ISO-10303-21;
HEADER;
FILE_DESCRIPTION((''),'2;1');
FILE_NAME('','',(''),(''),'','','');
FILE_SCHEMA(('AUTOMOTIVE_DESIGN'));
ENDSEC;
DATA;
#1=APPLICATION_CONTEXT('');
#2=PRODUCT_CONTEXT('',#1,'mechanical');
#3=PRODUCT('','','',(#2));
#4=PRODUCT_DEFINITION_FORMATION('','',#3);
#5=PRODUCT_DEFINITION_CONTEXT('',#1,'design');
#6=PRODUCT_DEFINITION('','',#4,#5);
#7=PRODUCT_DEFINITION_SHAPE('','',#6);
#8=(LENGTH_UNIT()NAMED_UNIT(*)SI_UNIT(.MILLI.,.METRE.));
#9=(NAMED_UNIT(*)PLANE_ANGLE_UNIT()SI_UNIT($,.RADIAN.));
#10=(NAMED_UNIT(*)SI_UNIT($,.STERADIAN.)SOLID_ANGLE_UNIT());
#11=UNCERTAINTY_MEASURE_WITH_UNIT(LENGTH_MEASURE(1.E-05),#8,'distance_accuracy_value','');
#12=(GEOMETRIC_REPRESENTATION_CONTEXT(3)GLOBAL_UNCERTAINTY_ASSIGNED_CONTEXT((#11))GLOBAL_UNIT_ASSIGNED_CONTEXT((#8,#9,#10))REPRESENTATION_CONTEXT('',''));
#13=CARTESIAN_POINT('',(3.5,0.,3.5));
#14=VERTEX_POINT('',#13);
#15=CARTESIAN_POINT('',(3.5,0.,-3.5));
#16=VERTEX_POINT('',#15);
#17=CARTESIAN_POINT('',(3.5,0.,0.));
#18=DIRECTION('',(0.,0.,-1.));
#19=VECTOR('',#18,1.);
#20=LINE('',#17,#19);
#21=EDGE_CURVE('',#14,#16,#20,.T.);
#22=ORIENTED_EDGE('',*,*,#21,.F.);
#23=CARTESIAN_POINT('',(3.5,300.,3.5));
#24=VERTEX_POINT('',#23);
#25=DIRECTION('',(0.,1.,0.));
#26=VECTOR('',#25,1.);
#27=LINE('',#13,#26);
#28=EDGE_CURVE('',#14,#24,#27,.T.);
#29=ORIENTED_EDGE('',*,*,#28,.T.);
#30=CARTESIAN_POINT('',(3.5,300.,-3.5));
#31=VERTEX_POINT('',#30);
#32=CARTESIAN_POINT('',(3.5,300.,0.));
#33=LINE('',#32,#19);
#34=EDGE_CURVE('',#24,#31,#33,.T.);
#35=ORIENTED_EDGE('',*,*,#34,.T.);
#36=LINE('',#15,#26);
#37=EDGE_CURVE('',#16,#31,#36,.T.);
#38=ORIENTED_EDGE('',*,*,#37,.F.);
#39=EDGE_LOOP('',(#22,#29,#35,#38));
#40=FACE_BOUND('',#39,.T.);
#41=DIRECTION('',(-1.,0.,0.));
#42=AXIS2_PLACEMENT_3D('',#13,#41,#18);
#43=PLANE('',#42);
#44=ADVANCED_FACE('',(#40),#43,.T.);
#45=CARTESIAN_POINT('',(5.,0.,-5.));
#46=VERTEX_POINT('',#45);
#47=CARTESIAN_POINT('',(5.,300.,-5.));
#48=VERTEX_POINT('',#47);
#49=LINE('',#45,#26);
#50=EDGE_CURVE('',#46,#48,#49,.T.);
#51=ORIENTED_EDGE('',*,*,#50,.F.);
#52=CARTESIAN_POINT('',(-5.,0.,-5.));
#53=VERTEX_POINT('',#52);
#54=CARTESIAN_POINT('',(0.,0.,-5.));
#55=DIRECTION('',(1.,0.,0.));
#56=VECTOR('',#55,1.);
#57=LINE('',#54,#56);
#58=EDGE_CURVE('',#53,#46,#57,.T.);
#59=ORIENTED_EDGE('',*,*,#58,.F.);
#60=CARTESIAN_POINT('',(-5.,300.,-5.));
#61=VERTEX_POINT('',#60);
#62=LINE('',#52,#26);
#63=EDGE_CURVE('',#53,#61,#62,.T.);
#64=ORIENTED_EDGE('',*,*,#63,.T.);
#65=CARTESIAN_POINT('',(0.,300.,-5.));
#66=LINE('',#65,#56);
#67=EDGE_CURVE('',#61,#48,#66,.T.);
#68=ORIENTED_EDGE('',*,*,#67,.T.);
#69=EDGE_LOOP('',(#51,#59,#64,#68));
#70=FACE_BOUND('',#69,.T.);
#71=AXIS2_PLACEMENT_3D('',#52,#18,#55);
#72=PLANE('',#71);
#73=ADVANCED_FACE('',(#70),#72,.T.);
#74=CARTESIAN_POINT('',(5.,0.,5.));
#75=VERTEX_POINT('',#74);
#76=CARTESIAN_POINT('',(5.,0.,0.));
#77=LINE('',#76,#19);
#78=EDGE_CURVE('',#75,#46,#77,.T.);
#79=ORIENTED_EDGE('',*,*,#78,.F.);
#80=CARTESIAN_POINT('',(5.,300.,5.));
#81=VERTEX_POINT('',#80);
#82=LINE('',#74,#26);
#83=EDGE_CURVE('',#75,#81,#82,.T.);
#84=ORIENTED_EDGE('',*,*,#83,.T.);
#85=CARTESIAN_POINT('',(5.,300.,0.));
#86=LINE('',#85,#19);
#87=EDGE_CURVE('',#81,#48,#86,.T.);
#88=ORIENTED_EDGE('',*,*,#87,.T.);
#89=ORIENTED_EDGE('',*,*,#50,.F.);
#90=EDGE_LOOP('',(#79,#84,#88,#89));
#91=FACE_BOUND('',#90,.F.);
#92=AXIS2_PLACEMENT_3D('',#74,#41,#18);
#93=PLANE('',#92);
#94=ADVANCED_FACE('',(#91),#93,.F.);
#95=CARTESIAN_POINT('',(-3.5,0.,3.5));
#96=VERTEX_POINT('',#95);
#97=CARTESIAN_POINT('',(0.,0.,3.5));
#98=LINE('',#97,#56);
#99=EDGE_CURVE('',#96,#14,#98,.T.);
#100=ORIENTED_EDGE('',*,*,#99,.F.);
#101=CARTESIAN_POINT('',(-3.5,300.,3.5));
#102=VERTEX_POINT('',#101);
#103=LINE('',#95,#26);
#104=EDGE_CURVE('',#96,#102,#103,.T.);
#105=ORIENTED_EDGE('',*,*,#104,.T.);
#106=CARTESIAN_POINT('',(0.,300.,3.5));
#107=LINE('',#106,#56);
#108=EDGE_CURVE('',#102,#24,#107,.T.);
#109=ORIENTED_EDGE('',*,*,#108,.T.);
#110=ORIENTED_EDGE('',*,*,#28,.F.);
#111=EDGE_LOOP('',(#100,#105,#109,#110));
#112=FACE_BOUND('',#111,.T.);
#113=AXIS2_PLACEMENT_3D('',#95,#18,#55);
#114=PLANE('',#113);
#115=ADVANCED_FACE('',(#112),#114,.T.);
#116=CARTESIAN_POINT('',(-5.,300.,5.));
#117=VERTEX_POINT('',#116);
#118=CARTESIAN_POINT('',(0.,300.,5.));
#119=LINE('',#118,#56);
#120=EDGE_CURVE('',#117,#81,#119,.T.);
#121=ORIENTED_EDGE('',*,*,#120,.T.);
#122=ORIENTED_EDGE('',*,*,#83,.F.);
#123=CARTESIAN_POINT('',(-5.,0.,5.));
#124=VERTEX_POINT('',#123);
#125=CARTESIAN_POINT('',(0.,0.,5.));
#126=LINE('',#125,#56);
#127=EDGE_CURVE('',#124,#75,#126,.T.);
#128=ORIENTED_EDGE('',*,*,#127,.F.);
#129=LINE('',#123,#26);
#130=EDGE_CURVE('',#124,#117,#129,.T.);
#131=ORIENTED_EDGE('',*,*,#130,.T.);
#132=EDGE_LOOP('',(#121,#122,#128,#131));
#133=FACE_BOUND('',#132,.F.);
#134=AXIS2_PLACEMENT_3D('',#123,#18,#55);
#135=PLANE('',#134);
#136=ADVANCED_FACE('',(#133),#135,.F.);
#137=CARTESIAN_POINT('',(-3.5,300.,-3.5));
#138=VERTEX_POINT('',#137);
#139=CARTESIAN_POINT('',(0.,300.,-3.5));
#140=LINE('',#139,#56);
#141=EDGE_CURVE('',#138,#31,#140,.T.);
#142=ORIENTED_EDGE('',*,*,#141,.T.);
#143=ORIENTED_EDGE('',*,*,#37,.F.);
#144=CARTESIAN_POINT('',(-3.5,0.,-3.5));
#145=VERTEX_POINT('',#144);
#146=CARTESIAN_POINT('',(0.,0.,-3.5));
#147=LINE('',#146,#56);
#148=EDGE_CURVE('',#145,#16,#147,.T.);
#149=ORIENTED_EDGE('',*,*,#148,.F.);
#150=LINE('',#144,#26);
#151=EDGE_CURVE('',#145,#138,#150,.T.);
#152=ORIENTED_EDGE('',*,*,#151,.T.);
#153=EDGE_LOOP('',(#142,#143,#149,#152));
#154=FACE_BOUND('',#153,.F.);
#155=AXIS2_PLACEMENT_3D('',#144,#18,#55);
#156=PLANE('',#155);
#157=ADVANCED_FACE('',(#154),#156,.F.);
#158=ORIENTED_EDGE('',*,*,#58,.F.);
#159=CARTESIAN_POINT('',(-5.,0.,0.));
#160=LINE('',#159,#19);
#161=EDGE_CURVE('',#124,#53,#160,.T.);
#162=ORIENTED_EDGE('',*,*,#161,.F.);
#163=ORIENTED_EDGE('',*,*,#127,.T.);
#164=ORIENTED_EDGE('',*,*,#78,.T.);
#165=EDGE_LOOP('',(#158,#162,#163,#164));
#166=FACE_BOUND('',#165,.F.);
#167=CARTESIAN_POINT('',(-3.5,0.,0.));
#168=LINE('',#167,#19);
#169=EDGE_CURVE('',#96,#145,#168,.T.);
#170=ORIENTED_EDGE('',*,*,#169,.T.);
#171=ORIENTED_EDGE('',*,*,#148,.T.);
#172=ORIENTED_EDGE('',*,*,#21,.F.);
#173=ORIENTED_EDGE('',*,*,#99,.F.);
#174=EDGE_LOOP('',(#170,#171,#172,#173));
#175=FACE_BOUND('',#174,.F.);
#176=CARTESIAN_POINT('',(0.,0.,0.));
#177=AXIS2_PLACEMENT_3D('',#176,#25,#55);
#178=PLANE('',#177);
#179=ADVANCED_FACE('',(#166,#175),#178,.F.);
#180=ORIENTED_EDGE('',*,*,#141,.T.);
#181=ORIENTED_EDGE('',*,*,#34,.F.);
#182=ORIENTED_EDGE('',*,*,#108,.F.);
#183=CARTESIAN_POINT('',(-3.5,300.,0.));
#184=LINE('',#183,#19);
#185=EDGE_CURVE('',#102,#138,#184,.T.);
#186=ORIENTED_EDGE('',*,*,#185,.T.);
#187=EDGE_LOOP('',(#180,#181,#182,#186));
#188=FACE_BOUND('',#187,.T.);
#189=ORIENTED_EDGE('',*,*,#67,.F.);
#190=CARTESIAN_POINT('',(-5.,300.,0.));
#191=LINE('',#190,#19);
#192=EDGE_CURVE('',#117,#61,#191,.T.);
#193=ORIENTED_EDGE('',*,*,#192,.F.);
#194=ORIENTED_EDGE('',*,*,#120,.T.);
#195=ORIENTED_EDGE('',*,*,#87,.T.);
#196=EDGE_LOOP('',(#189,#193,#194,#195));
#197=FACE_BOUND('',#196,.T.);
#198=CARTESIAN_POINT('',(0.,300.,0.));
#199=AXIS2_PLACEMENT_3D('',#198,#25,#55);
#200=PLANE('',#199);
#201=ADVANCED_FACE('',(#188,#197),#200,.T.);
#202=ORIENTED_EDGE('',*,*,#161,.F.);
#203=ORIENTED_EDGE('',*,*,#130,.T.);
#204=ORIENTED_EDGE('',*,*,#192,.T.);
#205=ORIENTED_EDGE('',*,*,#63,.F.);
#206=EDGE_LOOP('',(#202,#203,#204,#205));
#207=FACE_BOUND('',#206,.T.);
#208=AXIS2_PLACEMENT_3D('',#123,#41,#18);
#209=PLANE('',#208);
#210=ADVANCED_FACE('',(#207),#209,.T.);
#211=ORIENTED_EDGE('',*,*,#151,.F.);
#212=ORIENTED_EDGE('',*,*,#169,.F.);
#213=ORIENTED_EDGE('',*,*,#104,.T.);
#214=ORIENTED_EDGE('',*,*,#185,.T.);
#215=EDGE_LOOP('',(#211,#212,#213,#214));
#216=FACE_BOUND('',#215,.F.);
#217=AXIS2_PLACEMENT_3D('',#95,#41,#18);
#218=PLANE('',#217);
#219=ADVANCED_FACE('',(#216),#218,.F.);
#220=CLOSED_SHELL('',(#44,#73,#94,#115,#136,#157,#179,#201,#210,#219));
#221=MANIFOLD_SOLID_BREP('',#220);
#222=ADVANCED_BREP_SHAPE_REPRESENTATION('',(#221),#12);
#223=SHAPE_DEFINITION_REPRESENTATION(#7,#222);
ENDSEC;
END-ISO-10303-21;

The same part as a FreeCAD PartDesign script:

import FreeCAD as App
import Part
import Sketcher
from FreeCAD import Vector

doc = App.newDocument("Part")
body = doc.addObject("PartDesign::Body", "Body")

# Sketch on XZ plane
sketch1 = doc.addObject("Sketcher::SketchObject", "Sketch")
body.addObject(sketch1)
sketch1.AttachmentSupport = (doc.XZ_Plane, [""])
sketch1.MapMode = "FlatFace"
sketch1.addGeometry(Part.LineSegment(Vector(-5, -5, 0), Vector(-5, 5, 0)), False)
sketch1.addGeometry(Part.LineSegment(Vector(-5, 5, 0), Vector(5, 5, 0)), False)
sketch1.addGeometry(Part.LineSegment(Vector(5, 5, 0), Vector(5, -5, 0)), False)
sketch1.addGeometry(Part.LineSegment(Vector(5, -5, 0), Vector(-5, -5, 0)), False)
sketch1.addGeometry(Part.LineSegment(Vector(4, 4, 0), Vector(-4, 4, 0)), False)
sketch1.addGeometry(Part.LineSegment(Vector(-4, 4, 0), Vector(-4, -4, 0)), False)
sketch1.addGeometry(Part.LineSegment(Vector(-4, -4, 0), Vector(4, -4, 0)), False)
sketch1.addGeometry(Part.LineSegment(Vector(4, -4, 0), Vector(4, 4, 0)), False)
sketch1.addConstraint(Sketcher.Constraint("Coincident", 0, 2, 1, 1))
sketch1.addConstraint(Sketcher.Constraint("Coincident", 1, 2, 2, 1))
sketch1.addConstraint(Sketcher.Constraint("Coincident", 2, 2, 3, 1))
sketch1.addConstraint(Sketcher.Constraint("Coincident", 3, 2, 0, 1))
sketch1.addConstraint(Sketcher.Constraint("Coincident", 4, 2, 5, 1))
sketch1.addConstraint(Sketcher.Constraint("Coincident", 5, 2, 6, 1))
sketch1.addConstraint(Sketcher.Constraint("Coincident", 6, 2, 7, 1))
sketch1.addConstraint(Sketcher.Constraint("Coincident", 7, 2, 4, 1))
sketch1.addConstraint(Sketcher.Constraint("Vertical", 0))
sketch1.addConstraint(Sketcher.Constraint("Horizontal", 1))
sketch1.addConstraint(Sketcher.Constraint("Vertical", 2))
sketch1.addConstraint(Sketcher.Constraint("Horizontal", 3))
sketch1.addConstraint(Sketcher.Constraint("Horizontal", 4))
sketch1.addConstraint(Sketcher.Constraint("Vertical", 5))
sketch1.addConstraint(Sketcher.Constraint("Horizontal", 6))
sketch1.addConstraint(Sketcher.Constraint("Vertical", 7))
sketch1.addConstraint(Sketcher.Constraint("Symmetric", 0, 2, 2, 2, -1, 1))
sketch1.addConstraint(Sketcher.Constraint("Symmetric", 4, 2, 6, 2, -1, 1))
sketch1.addConstraint(Sketcher.Constraint("Equal", 3, 0))
sketch1.addConstraint(Sketcher.Constraint("Equal", 6, 5))
sketch1.addConstraint(Sketcher.Constraint("DistanceX", 1, 1, 1, 2, 10.0))
sketch1.addConstraint(Sketcher.Constraint("DistanceX", 4, 2, 4, 1, 7.0))
pad1 = doc.addObject("PartDesign::Pad", "Pad")
body.addObject(pad1)
pad1.Profile = sketch1
pad1.Length = 300
pad1.Reversed = True

doc.recompute()
